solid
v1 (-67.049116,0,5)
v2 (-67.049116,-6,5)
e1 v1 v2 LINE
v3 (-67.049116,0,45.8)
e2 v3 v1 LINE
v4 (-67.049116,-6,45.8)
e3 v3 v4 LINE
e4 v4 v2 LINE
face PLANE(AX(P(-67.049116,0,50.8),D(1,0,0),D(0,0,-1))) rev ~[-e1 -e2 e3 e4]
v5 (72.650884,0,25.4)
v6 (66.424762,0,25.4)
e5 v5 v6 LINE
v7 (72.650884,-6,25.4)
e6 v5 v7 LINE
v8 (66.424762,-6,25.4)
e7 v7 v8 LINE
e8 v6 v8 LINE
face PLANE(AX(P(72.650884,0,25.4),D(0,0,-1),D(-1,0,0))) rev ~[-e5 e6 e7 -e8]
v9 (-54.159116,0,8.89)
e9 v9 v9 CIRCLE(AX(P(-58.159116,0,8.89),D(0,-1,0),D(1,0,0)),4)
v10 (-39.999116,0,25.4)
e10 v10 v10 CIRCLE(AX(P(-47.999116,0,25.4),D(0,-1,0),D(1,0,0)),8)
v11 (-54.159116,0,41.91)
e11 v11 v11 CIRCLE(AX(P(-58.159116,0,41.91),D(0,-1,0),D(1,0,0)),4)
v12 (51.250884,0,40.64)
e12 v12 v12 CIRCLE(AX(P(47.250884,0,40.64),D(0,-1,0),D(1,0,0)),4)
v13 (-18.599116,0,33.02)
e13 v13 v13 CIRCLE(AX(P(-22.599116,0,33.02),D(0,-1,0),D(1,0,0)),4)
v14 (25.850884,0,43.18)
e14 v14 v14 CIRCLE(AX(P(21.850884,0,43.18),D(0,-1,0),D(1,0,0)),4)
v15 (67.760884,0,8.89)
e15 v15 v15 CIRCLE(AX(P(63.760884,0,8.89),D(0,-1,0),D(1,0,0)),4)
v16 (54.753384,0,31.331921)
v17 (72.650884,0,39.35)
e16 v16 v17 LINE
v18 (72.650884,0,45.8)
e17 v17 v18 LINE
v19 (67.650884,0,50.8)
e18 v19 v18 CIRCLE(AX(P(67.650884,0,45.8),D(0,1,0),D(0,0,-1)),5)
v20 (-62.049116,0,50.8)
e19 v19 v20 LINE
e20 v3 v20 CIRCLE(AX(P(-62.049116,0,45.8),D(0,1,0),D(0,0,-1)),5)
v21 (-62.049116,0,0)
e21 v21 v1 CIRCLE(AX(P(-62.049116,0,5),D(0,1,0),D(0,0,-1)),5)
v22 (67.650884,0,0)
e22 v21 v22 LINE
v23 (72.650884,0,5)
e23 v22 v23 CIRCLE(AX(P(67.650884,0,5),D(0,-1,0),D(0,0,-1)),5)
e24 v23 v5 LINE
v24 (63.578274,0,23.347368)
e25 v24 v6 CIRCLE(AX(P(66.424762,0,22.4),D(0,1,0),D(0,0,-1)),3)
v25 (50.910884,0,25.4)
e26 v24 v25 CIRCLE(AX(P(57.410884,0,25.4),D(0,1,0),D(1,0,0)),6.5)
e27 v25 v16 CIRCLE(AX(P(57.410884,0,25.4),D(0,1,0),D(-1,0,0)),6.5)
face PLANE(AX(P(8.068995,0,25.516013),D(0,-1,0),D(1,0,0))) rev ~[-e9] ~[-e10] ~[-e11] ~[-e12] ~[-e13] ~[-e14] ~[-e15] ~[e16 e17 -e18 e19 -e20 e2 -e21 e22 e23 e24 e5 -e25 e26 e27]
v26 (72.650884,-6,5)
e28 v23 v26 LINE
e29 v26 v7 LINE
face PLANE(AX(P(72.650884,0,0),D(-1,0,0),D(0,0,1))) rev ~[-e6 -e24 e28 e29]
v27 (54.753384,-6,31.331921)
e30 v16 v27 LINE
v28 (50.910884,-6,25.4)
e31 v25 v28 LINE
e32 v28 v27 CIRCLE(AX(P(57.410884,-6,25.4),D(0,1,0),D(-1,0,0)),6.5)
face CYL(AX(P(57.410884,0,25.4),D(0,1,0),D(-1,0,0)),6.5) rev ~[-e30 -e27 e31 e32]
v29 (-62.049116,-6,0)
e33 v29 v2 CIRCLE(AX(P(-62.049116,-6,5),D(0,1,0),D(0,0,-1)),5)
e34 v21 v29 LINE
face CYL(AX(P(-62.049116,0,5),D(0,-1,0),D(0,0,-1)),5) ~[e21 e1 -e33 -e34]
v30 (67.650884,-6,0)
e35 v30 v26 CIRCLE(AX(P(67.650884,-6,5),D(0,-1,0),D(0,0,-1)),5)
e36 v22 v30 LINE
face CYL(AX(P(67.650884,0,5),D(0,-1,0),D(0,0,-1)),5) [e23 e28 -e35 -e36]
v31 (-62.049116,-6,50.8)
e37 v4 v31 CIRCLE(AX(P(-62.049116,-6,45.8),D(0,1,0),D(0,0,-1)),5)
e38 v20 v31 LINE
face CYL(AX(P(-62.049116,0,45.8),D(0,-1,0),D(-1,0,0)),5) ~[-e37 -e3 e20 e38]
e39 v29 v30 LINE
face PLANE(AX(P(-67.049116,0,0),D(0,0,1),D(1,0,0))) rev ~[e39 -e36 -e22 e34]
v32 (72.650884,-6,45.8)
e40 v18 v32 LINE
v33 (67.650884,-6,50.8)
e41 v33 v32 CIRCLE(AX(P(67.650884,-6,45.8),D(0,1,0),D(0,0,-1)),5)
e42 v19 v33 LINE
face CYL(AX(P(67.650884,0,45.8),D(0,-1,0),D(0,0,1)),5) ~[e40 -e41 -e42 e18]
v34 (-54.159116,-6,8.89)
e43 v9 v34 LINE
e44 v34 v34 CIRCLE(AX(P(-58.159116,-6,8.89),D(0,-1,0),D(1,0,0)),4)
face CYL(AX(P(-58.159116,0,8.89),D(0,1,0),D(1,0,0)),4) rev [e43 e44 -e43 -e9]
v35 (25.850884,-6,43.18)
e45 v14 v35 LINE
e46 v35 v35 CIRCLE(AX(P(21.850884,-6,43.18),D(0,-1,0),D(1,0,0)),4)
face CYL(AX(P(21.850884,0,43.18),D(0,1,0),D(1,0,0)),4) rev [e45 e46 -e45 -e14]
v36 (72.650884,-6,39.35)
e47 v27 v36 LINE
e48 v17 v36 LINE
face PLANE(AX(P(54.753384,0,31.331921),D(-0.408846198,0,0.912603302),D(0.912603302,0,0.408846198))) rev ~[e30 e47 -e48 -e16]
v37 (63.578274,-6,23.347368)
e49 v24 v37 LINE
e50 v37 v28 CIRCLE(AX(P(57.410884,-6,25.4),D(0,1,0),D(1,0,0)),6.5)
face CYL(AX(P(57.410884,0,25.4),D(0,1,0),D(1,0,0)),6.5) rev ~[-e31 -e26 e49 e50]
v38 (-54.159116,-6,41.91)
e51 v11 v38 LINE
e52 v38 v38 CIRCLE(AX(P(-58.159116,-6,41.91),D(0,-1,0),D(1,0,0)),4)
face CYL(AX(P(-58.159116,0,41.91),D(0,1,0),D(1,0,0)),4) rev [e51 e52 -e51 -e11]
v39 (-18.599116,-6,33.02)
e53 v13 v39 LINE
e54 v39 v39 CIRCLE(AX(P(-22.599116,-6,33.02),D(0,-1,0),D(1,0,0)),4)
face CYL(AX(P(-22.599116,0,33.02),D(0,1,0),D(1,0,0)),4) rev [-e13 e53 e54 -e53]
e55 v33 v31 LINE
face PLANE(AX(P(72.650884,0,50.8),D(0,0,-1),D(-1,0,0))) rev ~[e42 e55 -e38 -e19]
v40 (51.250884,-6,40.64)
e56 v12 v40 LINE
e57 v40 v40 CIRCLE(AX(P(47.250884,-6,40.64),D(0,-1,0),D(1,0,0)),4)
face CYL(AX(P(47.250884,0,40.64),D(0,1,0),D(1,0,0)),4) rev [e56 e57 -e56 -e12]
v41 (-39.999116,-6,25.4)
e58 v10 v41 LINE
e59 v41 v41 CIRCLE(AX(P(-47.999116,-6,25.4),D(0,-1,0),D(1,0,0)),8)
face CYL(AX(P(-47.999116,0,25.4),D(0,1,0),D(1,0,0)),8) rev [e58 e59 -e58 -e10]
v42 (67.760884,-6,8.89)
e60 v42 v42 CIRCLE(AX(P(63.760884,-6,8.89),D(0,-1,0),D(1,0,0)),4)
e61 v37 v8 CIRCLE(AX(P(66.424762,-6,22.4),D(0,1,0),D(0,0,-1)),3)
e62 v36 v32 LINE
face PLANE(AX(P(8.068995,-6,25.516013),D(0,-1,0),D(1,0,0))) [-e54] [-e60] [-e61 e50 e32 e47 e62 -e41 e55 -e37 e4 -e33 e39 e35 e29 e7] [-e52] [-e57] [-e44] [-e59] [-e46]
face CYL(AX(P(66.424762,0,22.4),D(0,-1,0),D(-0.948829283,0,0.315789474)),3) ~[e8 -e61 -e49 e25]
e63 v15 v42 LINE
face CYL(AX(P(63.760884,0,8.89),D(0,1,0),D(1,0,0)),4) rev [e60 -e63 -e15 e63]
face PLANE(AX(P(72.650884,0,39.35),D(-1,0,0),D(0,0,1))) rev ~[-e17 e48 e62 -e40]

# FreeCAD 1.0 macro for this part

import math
import FreeCAD as App
import Part
import Sketcher
Q = App.Units.Quantity


def edges_at(feature, points):
    """Names of the edges that pass closest to the given points."""
    edges = feature.Shape.Edges
    near = lambda p: min(range(len(edges)), key=lambda i: edges[i].distToShape(Part.Vertex(*p))[0])
    return sorted({f"Edge{near(p) + 1}" for p in points})

doc = App.newDocument("Part")
body = doc.addObject("PartDesign::Body", "Body")

# Sketch on XZ plane
sketch1 = doc.addObject("Sketcher::SketchObject", "Sketch")
body.addObject(sketch1)
sketch1.AttachmentSupport = (doc.XZ_Plane, [""])
sketch1.MapMode = "FlatFace"
sketch1.addGeometry([
    Part.LineSegment(App.Vector(-67.049116, 0, 0), App.Vector(72.650884, 0, 0)),  # 0
    Part.LineSegment(App.Vector(72.650884, 0, 0), App.Vector(72.650884, 25.4, 0)),  # 1
    Part.LineSegment(App.Vector(72.650884, 25.4, 0), App.Vector(63.910884, 25.4, 0)),  # 2
    Part.ArcOfCircle(Part.Circle(App.Vector(57.410884, 25.4, 0), App.Vector(0, 0, 1), 6.5), math.radians(180), math.radians(360)),  # 3
    Part.ArcOfCircle(Part.Circle(App.Vector(57.410884, 25.4, 0), App.Vector(0, 0, 1), 6.5), math.radians(114.132375), math.radians(180)),  # 4
    Part.LineSegment(App.Vector(54.753384, 31.331921, 0), App.Vector(72.650884, 39.35, 0)),  # 5
    Part.LineSegment(App.Vector(72.650884, 39.35, 0), App.Vector(72.650884, 50.8, 0)),  # 6
    Part.LineSegment(App.Vector(72.650884, 50.8, 0), App.Vector(-67.049116, 50.8, 0)),  # 7
    Part.LineSegment(App.Vector(-67.049116, 50.8, 0), App.Vector(-67.049116, 0, 0)),  # 8
    Part.Circle(App.Vector(-58.159116, 8.89, 0), App.Vector(0, 0, 1), 4),  # 9
    Part.Circle(App.Vector(-47.999116, 25.4, 0), App.Vector(0, 0, 1), 8),  # 10
    Part.Circle(App.Vector(63.760884, 8.89, 0), App.Vector(0, 0, 1), 4),  # 11
    Part.Circle(App.Vector(-22.599116, 33.02, 0), App.Vector(0, 0, 1), 4),  # 12
    Part.Circle(App.Vector(-58.159116, 41.91, 0), App.Vector(0, 0, 1), 4),  # 13
    Part.Circle(App.Vector(21.850884, 43.18, 0), App.Vector(0, 0, 1), 4),  # 14
    Part.Circle(App.Vector(47.250884, 40.64, 0), App.Vector(0, 0, 1), 4),  # 15
], False)
sketch1.addConstraint([
    Sketcher.Constraint("Coincident", 0, 2, 1, 1),
    Sketcher.Constraint("Coincident", 1, 2, 2, 1),
    Sketcher.Constraint("Coincident", 2, 2, 3, 2),
    Sketcher.Constraint("Tangent", 3, 1, 4, 2),
    Sketcher.Constraint("Tangent", 4, 1, 5, 1),
    Sketcher.Constraint("Coincident", 5, 2, 6, 1),
    Sketcher.Constraint("Coincident", 6, 2, 7, 1),
    Sketcher.Constraint("Coincident", 7, 2, 8, 1),
    Sketcher.Constraint("Coincident", 8, 2, 0, 1),
    Sketcher.Constraint("Horizontal", 0),
    Sketcher.Constraint("Vertical", 1),
    Sketcher.Constraint("Horizontal", 2),
    Sketcher.Constraint("Vertical", 6),
    Sketcher.Constraint("Horizontal", 7),
    Sketcher.Constraint("Vertical", 8),
    Sketcher.Constraint("Equal", 3, 4),
    Sketcher.Constraint("Equal", 9, 11),
    Sketcher.Constraint("Equal", 11, 12),
    Sketcher.Constraint("Equal", 12, 13),
    Sketcher.Constraint("Equal", 13, 14),
    Sketcher.Constraint("Equal", 14, 15),
    Sketcher.Constraint("PointOnObject", 0, 2, -1),
    Sketcher.Constraint("Horizontal", 4, 3, 10, 3),
    Sketcher.Constraint("Horizontal", 9, 3, 11, 3),
    Sketcher.Constraint("Horizontal", 10, 3, 1, 2),
    Sketcher.Constraint("Horizontal", 2, 2, 3, 1),
    Sketcher.Constraint("Vertical", 9, 3, 13, 3),
    Sketcher.Constraint("Vertical", 1, 2, 5, 2),
    Sketcher.Constraint("Diameter", 9, Q("8 mm")),
    Sketcher.Constraint("Diameter", 10, Q("16 mm")),
    Sketcher.Constraint("Radius", 3, Q("6.5 mm")),
    Sketcher.Constraint("DistanceX", 0, 1, 0, 2, Q("139.7 mm")),
    Sketcher.Constraint("DistanceY", 1, 1, 1, 2, Q("25.4 mm")),
    Sketcher.Constraint("DistanceY", 8, 2, 8, 1, Q("50.8 mm")),
    Sketcher.Constraint("DistanceX", 2, 2, 2, 1, Q("8.74 mm")),
    Sketcher.Constraint("DistanceY", 6, 1, 6, 2, Q("11.45 mm")),
    Sketcher.Constraint("DistanceX", 10, 3, 12, 3, Q("25.4 mm")),
    Sketcher.Constraint("DistanceX", 14, 3, 15, 3, Q("25.4 mm")),
    Sketcher.Constraint("DistanceX", 15, 3, 0, 2, Q("25.4 mm")),
    Sketcher.Constraint("DistanceY", -1, 1, 9, 3, Q("8.89 mm")),
    Sketcher.Constraint("DistanceY", -1, 1, 12, 3, Q("33.02 mm")),
    Sketcher.Constraint("DistanceY", -1, 1, 13, 3, Q("41.91 mm")),
    Sketcher.Constraint("DistanceY", -1, 1, 14, 3, Q("43.18 mm")),
    Sketcher.Constraint("DistanceY", -1, 1, 15, 3, Q("40.64 mm")),
    Sketcher.Constraint("DistanceX", 9, 3, 3, 3, Q("115.57 mm")),
    Sketcher.Constraint("DistanceX", 9, 3, 10, 3, Q("10.16 mm")),
    Sketcher.Constraint("DistanceX", 3, 3, 11, 3, Q("6.35 mm")),
    Sketcher.Constraint("DistanceX", -1, 1, 3, 3, Q("57.410884 mm")),
])
pad1 = doc.addObject("PartDesign::Pad", "Pad")
body.addObject(pad1)
pad1.Profile = sketch1
pad1.Length = 6
doc.recompute()

fillet = doc.addObject("PartDesign::Fillet", "Fillet")
body.addObject(fillet)
fillet.Base = (pad1, edges_at(pad1, [(-67.049, -3, 50.8), (-67.049, -3, 0), (72.651, -3, 0)]))
fillet.Radius = 5
doc.recompute()

fillet2 = doc.addObject("PartDesign::Fillet", "Fillet001")
body.addObject(fillet2)
fillet2.Base = (fillet, edges_at(fillet, [(72.651, -3, 50.8)]))
fillet2.Radius = 5
doc.recompute()

fillet3 = doc.addObject("PartDesign::Fillet", "Fillet002")
body.addObject(fillet3)
fillet3.Base = (fillet2, edges_at(fillet2, [(63.911, -3, 25.4)]))
fillet3.Radius = 3

doc.recompute()
